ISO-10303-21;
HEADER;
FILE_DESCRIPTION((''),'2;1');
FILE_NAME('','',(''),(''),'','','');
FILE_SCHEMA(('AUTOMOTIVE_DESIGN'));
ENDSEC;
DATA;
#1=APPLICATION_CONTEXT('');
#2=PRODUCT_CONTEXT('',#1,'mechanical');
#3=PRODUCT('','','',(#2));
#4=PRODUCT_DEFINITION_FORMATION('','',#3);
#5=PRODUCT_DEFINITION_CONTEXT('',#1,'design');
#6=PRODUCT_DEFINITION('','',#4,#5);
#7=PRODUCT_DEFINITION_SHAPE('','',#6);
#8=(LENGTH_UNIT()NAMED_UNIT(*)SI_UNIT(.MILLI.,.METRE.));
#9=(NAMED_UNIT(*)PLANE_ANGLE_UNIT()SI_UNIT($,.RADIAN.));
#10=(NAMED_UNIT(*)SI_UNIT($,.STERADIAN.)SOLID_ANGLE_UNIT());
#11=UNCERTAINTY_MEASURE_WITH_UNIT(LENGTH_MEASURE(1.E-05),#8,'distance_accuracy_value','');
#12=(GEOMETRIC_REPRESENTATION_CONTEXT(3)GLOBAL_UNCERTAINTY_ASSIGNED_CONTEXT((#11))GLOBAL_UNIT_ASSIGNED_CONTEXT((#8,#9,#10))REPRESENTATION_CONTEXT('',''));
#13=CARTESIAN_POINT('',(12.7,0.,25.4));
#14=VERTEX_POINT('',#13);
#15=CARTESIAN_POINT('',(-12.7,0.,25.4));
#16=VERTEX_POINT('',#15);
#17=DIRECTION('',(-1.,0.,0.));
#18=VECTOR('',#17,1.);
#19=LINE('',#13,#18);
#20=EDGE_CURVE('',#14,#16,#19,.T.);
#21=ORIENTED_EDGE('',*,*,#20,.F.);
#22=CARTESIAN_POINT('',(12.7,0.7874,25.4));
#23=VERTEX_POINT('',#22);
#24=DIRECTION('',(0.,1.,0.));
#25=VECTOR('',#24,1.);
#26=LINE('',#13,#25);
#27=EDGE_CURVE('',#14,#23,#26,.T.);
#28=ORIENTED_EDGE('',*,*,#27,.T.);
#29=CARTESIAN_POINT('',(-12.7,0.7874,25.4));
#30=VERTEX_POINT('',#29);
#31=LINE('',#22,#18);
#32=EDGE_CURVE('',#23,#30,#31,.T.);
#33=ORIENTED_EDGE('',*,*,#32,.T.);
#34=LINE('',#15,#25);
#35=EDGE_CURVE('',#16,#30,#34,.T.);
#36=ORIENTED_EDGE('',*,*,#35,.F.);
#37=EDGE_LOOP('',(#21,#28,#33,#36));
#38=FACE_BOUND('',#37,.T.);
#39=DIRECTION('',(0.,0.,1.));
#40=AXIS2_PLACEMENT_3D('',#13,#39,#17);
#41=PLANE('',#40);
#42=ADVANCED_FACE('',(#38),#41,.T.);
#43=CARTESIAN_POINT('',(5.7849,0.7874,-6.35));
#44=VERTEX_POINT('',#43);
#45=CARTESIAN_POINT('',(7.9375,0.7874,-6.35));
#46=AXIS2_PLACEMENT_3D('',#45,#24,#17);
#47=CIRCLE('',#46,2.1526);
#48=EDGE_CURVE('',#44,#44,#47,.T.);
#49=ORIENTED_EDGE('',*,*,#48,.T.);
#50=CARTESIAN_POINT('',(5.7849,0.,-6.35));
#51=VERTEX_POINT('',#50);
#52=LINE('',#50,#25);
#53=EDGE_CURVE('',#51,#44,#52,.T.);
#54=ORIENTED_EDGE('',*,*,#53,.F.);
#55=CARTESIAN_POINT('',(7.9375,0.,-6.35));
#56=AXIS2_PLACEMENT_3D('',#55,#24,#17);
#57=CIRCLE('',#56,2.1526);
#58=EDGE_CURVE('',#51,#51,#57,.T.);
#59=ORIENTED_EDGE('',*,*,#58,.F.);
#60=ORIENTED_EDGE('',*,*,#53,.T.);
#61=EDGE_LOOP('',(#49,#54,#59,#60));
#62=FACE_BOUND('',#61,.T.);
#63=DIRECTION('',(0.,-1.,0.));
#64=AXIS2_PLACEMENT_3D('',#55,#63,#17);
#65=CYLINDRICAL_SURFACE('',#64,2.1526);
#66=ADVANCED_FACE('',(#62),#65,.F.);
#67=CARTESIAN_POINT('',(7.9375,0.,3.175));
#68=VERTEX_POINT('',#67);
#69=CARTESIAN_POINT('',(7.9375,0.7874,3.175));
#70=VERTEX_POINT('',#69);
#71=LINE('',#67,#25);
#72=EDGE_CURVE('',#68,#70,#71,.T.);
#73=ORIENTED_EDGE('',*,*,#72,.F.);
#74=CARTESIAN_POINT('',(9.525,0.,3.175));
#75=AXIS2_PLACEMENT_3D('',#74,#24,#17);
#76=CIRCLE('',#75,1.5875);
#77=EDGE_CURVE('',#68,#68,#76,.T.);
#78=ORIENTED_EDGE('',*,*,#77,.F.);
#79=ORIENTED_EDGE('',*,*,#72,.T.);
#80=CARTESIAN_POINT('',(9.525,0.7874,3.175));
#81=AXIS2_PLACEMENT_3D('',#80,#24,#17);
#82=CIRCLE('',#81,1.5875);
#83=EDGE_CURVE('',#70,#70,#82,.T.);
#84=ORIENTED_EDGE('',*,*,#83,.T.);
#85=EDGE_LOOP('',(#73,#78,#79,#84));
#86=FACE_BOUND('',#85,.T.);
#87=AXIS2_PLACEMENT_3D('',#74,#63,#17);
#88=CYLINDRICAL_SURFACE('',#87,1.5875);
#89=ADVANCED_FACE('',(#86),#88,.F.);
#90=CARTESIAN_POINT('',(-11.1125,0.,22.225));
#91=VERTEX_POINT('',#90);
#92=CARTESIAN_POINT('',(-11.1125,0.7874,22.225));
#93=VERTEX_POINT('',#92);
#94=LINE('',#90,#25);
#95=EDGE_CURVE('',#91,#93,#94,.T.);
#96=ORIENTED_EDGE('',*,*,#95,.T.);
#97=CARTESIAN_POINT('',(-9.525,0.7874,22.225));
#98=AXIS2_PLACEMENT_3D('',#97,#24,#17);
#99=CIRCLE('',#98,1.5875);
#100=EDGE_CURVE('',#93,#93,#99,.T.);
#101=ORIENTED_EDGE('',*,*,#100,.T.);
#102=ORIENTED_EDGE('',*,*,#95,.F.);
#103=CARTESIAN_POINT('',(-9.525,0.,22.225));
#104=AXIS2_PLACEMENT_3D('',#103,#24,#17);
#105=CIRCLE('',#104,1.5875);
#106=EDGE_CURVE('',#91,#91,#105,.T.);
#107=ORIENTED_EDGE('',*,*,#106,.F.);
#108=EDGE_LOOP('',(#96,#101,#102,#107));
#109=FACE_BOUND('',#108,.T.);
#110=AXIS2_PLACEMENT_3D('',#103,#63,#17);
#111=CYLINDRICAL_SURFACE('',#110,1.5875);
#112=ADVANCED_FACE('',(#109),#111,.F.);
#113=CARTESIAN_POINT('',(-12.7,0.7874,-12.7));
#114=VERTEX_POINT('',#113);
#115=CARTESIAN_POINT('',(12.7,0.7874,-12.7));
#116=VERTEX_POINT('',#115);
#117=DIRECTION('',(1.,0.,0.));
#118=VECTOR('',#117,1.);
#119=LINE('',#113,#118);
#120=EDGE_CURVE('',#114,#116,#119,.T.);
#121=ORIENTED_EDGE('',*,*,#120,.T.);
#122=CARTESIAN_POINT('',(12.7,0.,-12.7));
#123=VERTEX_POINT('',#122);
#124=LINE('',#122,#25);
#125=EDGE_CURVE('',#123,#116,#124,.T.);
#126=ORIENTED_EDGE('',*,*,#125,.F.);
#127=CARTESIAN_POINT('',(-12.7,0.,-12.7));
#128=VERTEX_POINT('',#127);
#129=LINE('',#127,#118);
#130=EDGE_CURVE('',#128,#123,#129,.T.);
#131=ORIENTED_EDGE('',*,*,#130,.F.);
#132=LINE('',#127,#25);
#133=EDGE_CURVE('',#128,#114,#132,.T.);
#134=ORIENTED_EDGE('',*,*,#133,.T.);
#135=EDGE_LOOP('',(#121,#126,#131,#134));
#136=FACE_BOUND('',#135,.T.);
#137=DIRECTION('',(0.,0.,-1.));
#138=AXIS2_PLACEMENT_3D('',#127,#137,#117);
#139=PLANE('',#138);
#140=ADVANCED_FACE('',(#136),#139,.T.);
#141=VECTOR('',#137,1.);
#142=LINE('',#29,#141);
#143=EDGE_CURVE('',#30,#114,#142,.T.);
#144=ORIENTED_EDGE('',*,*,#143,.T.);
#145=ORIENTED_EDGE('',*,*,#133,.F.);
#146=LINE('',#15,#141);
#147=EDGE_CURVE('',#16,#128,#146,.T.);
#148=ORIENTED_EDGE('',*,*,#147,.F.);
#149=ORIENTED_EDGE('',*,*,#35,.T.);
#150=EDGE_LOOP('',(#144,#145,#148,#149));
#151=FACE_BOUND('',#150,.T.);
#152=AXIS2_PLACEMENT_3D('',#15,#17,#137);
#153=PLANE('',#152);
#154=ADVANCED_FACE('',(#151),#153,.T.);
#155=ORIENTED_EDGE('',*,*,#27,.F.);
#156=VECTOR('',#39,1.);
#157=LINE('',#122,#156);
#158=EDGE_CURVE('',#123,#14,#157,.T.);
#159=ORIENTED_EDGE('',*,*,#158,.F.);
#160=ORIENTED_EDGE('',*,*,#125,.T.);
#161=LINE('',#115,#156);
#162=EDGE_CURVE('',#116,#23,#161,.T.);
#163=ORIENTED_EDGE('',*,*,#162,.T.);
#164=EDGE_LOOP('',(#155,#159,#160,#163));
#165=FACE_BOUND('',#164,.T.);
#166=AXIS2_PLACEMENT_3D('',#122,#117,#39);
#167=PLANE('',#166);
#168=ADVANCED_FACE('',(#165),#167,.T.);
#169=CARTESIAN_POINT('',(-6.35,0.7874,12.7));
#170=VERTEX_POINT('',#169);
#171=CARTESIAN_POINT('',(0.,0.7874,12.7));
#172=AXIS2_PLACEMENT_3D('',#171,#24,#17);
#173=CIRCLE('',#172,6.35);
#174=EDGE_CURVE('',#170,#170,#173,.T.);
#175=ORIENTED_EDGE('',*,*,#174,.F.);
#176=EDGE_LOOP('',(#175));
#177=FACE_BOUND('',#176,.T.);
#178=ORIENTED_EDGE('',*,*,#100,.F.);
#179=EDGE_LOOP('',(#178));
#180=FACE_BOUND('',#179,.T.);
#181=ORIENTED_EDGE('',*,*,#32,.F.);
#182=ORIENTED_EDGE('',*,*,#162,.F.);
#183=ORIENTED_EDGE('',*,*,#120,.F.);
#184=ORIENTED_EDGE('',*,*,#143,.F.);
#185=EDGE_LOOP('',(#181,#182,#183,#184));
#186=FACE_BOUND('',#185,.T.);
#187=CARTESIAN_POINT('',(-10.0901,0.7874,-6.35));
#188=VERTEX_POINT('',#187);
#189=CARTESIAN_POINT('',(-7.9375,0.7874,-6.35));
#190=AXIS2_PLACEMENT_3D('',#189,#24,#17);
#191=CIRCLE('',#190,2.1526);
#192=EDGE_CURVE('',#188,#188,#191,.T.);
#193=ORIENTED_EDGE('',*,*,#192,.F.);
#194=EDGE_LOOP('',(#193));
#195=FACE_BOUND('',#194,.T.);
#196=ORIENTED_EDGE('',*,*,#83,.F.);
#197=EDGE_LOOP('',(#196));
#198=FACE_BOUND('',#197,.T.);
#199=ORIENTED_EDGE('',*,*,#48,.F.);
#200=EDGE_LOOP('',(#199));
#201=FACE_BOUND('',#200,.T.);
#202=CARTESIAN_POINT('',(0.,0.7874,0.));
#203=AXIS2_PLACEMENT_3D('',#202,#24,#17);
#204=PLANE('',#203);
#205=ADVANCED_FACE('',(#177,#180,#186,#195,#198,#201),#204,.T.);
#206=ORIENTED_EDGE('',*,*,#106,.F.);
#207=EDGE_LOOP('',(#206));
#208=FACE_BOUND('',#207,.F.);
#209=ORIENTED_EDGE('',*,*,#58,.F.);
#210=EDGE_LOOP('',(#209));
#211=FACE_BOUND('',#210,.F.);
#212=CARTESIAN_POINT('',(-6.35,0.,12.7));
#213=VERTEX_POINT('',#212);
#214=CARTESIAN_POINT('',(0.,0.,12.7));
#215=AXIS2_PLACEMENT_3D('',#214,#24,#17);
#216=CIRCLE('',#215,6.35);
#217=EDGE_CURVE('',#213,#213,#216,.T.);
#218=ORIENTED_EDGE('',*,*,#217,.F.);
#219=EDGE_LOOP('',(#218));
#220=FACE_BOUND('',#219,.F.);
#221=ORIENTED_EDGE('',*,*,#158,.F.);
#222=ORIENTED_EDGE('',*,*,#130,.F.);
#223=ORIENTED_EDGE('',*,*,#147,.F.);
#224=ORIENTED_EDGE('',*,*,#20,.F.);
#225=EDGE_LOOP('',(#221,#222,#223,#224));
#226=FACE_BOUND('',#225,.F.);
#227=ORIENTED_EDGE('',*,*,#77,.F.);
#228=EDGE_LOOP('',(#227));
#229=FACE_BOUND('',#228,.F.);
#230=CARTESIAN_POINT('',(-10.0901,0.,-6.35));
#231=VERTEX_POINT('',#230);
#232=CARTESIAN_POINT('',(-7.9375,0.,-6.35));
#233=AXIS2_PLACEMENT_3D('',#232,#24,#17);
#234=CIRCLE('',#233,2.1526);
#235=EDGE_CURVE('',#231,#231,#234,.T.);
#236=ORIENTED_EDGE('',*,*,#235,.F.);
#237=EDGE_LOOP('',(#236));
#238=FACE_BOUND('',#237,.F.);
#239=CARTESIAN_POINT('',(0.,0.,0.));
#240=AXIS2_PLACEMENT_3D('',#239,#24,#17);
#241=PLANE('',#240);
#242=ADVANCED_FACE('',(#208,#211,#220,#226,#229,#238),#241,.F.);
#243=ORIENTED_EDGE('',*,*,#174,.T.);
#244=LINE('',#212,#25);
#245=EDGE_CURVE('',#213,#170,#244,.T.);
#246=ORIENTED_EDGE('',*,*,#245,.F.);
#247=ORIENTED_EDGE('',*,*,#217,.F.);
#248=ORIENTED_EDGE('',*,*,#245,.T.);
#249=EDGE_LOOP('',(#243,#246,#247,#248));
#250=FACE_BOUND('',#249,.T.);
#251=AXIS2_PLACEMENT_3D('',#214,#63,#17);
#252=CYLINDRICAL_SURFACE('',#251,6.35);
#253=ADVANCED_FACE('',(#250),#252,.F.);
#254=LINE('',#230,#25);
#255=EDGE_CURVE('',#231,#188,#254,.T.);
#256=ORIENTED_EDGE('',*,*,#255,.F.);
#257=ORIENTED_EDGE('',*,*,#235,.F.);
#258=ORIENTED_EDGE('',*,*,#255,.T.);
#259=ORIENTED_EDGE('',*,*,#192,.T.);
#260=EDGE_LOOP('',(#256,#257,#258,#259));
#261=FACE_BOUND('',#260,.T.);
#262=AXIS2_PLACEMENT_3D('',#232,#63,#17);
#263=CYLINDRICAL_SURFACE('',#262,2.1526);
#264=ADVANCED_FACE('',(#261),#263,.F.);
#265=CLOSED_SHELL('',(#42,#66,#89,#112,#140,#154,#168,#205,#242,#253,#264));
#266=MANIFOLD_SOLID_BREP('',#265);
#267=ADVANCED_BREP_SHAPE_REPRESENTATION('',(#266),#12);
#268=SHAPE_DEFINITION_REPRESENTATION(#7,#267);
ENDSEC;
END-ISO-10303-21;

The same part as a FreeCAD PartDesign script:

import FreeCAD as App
import Part
import Sketcher

V = App.Vector
Q = App.Units.Quantity

doc = App.newDocument("Part")
params = doc.addObject("Spreadsheet::Sheet", "Params")
for row, (alias, value) in enumerate([
    ("sketch1_diameter", "0.5 in"),
    ("sketch1_width", "1 in"),
    ("sketch1_diameter2", "0.125 in"),
    ("pad1_length", "0.031 in"),
], start=1):
    params.set(f"A{row}", alias)
    params.set(f"B{row}", "=" + value)
    params.setAlias(f"B{row}", alias)

body = doc.addObject("PartDesign::Body", "Body")

# Sketch on XZ plane
sketch1 = doc.addObject("Sketcher::SketchObject", "Sketch")
body.addObject(sketch1)
sketch1.AttachmentSupport = (doc.XZ_Plane, [""])
sketch1.MapMode = "FlatFace"
sketch1.addGeometry(Part.LineSegment(V(-12.7, 25.4, 0), V(12.7, 25.4, 0)), False)
sketch1.addGeometry(Part.LineSegment(V(12.7, 25.4, 0), V(12.7, -12.7, 0)), False)
sketch1.addGeometry(Part.LineSegment(V(12.7, -12.7, 0), V(-12.7, -12.7, 0)), False)
sketch1.addGeometry(Part.LineSegment(V(-12.7, -12.7, 0), V(-12.7, 25.4, 0)), False)
sketch1.addGeometry(Part.Circle(V(7.9, -6.3, 0), V(0, 0, 1), 2.2), False)
sketch1.addGeometry(Part.Circle(V(9.5, 3.2, 0), V(0, 0, 1), 1.6), False)
sketch1.addGeometry(Part.Circle(V(-7.9, -6.3, 0), V(0, 0, 1), 2.2), False)
sketch1.addGeometry(Part.Circle(V(0, 12.7, 0), V(0, 0, 1), 6.3), False)
sketch1.addGeometry(Part.Circle(V(-9.5, 22.2, 0), V(0, 0, 1), 1.6), False)
sketch1.addConstraint(Sketcher.Constraint("Coincident", 0, 2, 1, 1))
sketch1.addConstraint(Sketcher.Constraint("Coincident", 1, 2, 2, 1))
sketch1.addConstraint(Sketcher.Constraint("Coincident", 2, 2, 3, 1))
sketch1.addConstraint(Sketcher.Constraint("Coincident", 3, 2, 0, 1))
sketch1.addConstraint(Sketcher.Constraint("Horizontal", 0))
sketch1.addConstraint(Sketcher.Constraint("Vertical", 1))
sketch1.addConstraint(Sketcher.Constraint("Horizontal", 2))
sketch1.addConstraint(Sketcher.Constraint("Vertical", 3))
sketch1.addConstraint(Sketcher.Constraint("Equal", 4, 6))
sketch1.addConstraint(Sketcher.Constraint("Equal", 5, 8))
sketch1.addConstraint(Sketcher.Constraint("Symmetric", 4, 3, 6, 3, -2))
sketch1.addConstraint(Sketcher.Constraint("PointOnObject", 7, 3, -2))
sketch1.addConstraint(Sketcher.Constraint("Diameter", 7, Q("0.5 in")))
sketch1.addConstraint(Sketcher.Constraint("DistanceX", 0, 1, 0, 2, Q("1 in")))
sketch1.addConstraint(Sketcher.Constraint("Diameter", 5, Q("0.125 in")))
sketch1.addConstraint(Sketcher.Constraint("DistanceY", -1, 1, 0, 2, Q("1 in")))
sketch1.addConstraint(Sketcher.Constraint("DistanceY", 1, 2, 7, 3, Q("1 in")))
sketch1.addConstraint(Sketcher.Constraint("Diameter", 4, Q("0.1695 in")))
sketch1.addConstraint(Sketcher.Constraint("DistanceY", -1, 1, 7, 3, Q("0.5 in")))
sketch1.addConstraint(Sketcher.Constraint("DistanceX", -1, 1, 0, 2, Q("0.5 in")))
sketch1.addConstraint(Sketcher.Constraint("DistanceY", 4, 3, -1, 1, Q("0.25 in")))
sketch1.addConstraint(Sketcher.Constraint("DistanceY", -1, 1, 5, 3, Q("0.125 in")))
sketch1.addConstraint(Sketcher.Constraint("DistanceX", 6, 3, 4, 3, Q("0.625 in")))
sketch1.addConstraint(Sketcher.Constraint("DistanceX", 5, 3, 0, 2, Q("0.125 in")))
sketch1.addConstraint(Sketcher.Constraint("DistanceY", 8, 3, 0, 2, Q("0.125 in")))
sketch1.addConstraint(Sketcher.Constraint("DistanceX", 3, 2, 8, 3, Q("0.125 in")))
sketch1.setExpression("Constraints[12]", "Params.sketch1_diameter")
sketch1.setExpression("Constraints[13]", "Params.sketch1_width")
sketch1.setExpression("Constraints[14]", "Params.sketch1_diameter2")
pad1 = doc.addObject("PartDesign::Pad", "Pad")
body.addObject(pad1)
pad1.Profile = sketch1
pad1.setExpression("Length", "Params.pad1_length")
pad1.Reversed = True

doc.recompute()
